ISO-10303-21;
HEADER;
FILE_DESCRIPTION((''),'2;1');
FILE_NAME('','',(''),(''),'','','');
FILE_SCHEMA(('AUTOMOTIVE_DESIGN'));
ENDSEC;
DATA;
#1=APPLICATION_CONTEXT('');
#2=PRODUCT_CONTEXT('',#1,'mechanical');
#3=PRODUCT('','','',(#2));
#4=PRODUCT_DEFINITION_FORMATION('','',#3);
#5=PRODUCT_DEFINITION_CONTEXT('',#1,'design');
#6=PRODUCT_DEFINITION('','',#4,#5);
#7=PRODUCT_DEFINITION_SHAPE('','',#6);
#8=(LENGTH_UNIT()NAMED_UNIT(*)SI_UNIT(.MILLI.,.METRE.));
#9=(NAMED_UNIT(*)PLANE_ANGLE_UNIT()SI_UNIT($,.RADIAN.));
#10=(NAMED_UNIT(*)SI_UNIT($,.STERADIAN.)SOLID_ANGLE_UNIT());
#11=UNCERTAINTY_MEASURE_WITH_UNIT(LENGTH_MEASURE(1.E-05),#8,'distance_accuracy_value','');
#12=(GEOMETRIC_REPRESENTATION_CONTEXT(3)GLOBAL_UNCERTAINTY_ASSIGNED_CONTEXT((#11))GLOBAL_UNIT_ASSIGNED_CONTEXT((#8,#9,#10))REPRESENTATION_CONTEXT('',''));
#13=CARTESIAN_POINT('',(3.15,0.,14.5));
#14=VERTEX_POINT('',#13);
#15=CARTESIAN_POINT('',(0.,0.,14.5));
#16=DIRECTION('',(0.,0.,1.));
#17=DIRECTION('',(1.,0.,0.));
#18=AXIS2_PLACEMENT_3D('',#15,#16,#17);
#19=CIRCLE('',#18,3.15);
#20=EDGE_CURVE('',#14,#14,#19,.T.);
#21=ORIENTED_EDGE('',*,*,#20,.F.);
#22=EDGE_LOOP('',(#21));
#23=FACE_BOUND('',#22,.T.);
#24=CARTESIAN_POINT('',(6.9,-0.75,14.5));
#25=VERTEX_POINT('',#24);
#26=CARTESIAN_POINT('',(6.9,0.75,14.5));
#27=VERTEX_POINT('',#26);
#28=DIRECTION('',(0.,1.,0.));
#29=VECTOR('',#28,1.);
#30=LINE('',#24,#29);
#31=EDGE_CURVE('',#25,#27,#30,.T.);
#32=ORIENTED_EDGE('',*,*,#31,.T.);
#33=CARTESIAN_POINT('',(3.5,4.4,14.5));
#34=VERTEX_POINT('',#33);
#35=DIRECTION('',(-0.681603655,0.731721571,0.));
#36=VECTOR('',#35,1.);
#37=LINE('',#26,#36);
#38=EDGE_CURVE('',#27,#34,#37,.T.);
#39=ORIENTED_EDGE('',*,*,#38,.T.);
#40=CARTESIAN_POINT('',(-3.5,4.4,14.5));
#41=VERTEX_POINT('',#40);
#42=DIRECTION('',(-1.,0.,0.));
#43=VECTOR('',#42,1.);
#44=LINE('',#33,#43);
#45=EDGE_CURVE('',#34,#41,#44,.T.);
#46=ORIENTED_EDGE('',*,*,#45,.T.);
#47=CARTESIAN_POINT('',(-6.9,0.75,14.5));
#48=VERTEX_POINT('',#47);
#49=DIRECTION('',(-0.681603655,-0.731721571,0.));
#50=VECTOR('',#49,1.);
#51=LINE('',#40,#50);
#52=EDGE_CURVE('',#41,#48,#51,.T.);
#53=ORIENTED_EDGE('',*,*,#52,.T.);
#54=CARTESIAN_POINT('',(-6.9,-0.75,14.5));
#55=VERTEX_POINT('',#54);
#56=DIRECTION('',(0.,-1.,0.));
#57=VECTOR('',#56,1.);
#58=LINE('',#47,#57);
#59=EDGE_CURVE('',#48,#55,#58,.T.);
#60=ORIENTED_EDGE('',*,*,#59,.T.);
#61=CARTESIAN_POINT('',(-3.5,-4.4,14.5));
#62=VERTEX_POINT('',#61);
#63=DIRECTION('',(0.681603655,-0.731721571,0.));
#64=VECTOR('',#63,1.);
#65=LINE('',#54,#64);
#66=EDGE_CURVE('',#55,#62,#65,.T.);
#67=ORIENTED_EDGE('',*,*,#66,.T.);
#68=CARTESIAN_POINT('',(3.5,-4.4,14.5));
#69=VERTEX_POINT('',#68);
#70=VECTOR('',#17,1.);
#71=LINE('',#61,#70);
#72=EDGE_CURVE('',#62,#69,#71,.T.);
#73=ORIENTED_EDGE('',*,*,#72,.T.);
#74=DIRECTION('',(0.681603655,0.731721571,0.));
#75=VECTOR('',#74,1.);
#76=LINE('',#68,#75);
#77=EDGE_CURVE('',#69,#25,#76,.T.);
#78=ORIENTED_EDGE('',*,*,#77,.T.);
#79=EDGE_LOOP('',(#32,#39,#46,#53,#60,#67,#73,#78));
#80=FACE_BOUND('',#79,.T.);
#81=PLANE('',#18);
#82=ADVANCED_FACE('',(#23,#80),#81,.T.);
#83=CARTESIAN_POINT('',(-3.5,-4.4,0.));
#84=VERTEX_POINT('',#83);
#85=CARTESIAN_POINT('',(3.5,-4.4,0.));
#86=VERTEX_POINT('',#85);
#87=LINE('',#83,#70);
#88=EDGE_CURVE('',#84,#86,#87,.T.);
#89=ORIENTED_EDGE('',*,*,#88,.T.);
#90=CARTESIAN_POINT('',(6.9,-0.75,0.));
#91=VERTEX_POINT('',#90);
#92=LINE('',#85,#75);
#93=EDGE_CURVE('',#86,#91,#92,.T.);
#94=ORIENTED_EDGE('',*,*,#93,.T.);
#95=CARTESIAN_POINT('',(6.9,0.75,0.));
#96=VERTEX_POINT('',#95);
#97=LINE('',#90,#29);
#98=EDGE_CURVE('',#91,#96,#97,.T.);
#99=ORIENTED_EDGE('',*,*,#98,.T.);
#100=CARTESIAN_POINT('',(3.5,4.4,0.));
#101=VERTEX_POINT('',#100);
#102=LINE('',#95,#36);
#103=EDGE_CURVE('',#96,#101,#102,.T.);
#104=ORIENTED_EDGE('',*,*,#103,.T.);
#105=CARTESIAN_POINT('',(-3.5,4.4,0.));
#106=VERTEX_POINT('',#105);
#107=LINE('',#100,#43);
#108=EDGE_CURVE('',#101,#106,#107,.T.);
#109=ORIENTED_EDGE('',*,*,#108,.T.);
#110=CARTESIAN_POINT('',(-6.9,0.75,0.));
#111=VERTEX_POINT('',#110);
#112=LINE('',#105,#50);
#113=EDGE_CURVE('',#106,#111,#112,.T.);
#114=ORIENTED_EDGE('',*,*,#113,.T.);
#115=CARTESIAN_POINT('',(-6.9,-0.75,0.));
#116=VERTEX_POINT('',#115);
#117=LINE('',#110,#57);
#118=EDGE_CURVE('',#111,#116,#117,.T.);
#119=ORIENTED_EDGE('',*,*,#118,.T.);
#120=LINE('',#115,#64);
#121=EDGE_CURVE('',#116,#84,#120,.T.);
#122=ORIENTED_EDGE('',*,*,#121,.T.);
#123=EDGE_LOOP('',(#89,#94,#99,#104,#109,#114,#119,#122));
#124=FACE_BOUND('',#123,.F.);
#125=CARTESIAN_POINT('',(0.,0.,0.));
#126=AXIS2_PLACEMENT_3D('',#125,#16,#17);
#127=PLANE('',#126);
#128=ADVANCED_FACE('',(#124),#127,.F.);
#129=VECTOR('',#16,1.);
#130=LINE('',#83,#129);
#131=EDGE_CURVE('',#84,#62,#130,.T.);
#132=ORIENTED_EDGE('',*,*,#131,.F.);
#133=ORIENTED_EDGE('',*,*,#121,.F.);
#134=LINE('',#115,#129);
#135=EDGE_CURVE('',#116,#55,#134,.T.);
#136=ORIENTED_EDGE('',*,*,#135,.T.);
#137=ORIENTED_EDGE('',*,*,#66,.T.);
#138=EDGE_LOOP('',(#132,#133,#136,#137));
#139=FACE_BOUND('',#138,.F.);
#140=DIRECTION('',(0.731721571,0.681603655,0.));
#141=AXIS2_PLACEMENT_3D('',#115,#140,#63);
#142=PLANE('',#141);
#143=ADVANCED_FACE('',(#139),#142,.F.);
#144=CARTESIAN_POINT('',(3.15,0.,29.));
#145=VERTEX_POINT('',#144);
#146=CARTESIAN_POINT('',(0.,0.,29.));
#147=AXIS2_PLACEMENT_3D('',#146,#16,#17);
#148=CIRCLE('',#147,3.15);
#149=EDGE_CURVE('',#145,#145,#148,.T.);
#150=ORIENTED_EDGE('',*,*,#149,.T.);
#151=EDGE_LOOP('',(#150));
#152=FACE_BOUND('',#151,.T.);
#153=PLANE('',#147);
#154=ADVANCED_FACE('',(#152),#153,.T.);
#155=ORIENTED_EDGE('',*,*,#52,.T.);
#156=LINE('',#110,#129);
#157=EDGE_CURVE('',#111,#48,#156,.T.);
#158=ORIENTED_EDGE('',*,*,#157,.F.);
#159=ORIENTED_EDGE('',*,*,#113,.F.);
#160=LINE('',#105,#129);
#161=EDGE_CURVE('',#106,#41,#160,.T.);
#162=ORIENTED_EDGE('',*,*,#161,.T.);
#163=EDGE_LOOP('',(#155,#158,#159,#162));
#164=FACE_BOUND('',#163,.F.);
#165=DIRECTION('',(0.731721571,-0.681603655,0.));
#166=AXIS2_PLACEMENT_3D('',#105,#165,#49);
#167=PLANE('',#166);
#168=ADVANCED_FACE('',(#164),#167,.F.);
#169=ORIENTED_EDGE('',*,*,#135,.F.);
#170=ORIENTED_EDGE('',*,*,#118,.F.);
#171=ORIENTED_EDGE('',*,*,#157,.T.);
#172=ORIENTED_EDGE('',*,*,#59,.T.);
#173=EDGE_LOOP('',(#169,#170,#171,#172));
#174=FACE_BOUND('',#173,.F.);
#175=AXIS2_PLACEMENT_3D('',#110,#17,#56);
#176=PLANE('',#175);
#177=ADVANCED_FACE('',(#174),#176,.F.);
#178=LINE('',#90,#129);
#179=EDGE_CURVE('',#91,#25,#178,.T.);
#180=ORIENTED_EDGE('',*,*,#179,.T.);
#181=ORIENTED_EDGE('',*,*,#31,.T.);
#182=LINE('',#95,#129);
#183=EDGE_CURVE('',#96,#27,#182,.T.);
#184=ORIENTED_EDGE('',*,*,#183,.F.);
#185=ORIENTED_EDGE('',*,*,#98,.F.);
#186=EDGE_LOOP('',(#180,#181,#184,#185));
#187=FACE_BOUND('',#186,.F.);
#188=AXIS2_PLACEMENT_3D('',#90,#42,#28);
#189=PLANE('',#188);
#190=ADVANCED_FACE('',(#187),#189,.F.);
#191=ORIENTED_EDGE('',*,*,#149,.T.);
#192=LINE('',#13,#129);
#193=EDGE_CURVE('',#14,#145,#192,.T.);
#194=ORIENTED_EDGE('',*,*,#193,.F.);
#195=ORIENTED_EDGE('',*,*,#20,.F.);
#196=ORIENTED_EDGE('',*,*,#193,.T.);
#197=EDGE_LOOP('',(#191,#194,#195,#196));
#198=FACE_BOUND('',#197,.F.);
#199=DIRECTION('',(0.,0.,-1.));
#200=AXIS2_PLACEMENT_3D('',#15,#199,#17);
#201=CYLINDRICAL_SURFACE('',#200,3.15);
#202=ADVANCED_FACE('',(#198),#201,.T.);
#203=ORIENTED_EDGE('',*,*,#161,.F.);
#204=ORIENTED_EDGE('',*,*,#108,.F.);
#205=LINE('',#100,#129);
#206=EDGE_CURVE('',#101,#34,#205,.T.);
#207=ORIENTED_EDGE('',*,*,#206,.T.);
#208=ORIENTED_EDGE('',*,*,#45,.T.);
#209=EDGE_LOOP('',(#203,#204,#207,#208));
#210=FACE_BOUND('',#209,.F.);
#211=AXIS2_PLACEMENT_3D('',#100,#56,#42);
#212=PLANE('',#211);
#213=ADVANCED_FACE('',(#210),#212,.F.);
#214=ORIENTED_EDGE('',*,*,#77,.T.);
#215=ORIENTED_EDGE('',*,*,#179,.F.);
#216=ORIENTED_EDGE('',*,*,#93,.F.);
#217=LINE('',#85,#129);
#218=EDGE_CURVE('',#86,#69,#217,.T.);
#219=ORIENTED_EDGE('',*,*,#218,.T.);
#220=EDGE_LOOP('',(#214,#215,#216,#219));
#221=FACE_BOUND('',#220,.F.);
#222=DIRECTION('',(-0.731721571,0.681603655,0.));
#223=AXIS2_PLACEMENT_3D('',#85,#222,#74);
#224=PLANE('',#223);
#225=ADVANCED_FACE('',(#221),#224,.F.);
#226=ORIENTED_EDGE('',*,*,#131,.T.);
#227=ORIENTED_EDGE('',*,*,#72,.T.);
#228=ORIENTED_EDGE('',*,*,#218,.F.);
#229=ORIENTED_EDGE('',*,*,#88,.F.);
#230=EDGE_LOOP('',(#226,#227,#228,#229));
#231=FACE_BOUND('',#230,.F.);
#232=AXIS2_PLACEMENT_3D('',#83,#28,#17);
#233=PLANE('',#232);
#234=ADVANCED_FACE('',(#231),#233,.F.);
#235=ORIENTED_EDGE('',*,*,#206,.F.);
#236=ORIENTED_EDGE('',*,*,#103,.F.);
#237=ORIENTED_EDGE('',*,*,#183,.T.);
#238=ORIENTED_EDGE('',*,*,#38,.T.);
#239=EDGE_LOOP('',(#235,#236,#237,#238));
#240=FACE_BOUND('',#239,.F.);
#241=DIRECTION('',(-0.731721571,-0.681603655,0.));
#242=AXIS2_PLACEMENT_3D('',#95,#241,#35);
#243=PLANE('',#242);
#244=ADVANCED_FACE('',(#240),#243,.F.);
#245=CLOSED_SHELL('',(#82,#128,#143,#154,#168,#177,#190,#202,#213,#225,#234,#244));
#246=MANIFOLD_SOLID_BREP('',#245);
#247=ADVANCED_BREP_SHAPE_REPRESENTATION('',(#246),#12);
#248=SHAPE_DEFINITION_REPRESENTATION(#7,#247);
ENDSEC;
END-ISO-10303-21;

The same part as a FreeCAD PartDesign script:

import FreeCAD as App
import Part
import Sketcher
from FreeCAD import Vector


def add_polygon(sketch, points):
    """Adds a closed chain of lines whose ends are joined by coincident constraints."""
    first, n = sketch.GeometryCount, len(points)
    for a, b in zip(points, points[1:] + points[:1]):
        sketch.addGeometry(Part.LineSegment(App.Vector(*a, 0), App.Vector(*b, 0)), False)
    for i in range(n):
        sketch.addConstraint(Sketcher.Constraint("Coincident", first + i, 2, first + (i + 1) % n, 1))

doc = App.newDocument("Part")
body = doc.addObject("PartDesign::Body", "Body")

# Sketch on XY plane
sketch1 = doc.addObject("Sketcher::SketchObject", "Sketch")
body.addObject(sketch1)
sketch1.AttachmentSupport = (doc.XY_Plane, [""])
sketch1.MapMode = "FlatFace"
add_polygon(sketch1, [(-3.5, -4.4), (3.5, -4.4), (6.9, -0.75), (6.9, 0.75), (3.5, 4.4), (-3.5, 4.4), (-6.9, 0.75), (-6.9, -0.75)])  # lines 0-7
sketch1.addConstraint([
    Sketcher.Constraint("Horizontal", 0),
    Sketcher.Constraint("Vertical", 2),
    Sketcher.Constraint("Horizontal", 4),
    Sketcher.Constraint("Vertical", 6),
    Sketcher.Constraint("Symmetric", 0, 2, 4, 2, -1, 1),
    Sketcher.Constraint("Symmetric", 1, 2, 5, 2, -1, 1),
    Sketcher.Constraint("Parallel", 3, 7),
    Sketcher.Constraint("Horizontal", 2, 2, 5, 2),
    Sketcher.Constraint("Horizontal", 1, 2, 6, 2),
    Sketcher.Constraint("Vertical", 0, 2, 3, 2),
    Sketcher.Constraint("DistanceX", 0, 1, 0, 2, 7.0),
    Sketcher.Constraint("DistanceY", 2, 1, 2, 2, 1.5),
    Sketcher.Constraint("DistanceY", 0, 2, -1, 1, 4.4),
    Sketcher.Constraint("DistanceX", -1, 1, 1, 2, 6.9),
])
pad1 = doc.addObject("PartDesign::Pad", "Pad")
body.addObject(pad1)
pad1.Profile = sketch1
pad1.Length = 14.5

# Sketch on XY plane
sketch2 = doc.addObject("Sketcher::SketchObject", "Sketch001")
body.addObject(sketch2)
sketch2.AttachmentSupport = (doc.XY_Plane, [""])
sketch2.MapMode = "FlatFace"
sketch2.AttachmentOffset = App.Placement(Vector(0, 0, 14.5), App.Rotation())
sketch2.addGeometry(Part.Circle(Vector(0, 0, 0), Vector(0, 0, 1), 3.15), False)
sketch2.addConstraint([
    Sketcher.Constraint("Coincident", 0, 3, -1, 1),
    Sketcher.Constraint("Diameter", 0, 6.3),
])
pad2 = doc.addObject("PartDesign::Pad", "Pad001")
body.addObject(pad2)
pad2.Profile = sketch2
pad2.Length = 14.5

doc.recompute()
